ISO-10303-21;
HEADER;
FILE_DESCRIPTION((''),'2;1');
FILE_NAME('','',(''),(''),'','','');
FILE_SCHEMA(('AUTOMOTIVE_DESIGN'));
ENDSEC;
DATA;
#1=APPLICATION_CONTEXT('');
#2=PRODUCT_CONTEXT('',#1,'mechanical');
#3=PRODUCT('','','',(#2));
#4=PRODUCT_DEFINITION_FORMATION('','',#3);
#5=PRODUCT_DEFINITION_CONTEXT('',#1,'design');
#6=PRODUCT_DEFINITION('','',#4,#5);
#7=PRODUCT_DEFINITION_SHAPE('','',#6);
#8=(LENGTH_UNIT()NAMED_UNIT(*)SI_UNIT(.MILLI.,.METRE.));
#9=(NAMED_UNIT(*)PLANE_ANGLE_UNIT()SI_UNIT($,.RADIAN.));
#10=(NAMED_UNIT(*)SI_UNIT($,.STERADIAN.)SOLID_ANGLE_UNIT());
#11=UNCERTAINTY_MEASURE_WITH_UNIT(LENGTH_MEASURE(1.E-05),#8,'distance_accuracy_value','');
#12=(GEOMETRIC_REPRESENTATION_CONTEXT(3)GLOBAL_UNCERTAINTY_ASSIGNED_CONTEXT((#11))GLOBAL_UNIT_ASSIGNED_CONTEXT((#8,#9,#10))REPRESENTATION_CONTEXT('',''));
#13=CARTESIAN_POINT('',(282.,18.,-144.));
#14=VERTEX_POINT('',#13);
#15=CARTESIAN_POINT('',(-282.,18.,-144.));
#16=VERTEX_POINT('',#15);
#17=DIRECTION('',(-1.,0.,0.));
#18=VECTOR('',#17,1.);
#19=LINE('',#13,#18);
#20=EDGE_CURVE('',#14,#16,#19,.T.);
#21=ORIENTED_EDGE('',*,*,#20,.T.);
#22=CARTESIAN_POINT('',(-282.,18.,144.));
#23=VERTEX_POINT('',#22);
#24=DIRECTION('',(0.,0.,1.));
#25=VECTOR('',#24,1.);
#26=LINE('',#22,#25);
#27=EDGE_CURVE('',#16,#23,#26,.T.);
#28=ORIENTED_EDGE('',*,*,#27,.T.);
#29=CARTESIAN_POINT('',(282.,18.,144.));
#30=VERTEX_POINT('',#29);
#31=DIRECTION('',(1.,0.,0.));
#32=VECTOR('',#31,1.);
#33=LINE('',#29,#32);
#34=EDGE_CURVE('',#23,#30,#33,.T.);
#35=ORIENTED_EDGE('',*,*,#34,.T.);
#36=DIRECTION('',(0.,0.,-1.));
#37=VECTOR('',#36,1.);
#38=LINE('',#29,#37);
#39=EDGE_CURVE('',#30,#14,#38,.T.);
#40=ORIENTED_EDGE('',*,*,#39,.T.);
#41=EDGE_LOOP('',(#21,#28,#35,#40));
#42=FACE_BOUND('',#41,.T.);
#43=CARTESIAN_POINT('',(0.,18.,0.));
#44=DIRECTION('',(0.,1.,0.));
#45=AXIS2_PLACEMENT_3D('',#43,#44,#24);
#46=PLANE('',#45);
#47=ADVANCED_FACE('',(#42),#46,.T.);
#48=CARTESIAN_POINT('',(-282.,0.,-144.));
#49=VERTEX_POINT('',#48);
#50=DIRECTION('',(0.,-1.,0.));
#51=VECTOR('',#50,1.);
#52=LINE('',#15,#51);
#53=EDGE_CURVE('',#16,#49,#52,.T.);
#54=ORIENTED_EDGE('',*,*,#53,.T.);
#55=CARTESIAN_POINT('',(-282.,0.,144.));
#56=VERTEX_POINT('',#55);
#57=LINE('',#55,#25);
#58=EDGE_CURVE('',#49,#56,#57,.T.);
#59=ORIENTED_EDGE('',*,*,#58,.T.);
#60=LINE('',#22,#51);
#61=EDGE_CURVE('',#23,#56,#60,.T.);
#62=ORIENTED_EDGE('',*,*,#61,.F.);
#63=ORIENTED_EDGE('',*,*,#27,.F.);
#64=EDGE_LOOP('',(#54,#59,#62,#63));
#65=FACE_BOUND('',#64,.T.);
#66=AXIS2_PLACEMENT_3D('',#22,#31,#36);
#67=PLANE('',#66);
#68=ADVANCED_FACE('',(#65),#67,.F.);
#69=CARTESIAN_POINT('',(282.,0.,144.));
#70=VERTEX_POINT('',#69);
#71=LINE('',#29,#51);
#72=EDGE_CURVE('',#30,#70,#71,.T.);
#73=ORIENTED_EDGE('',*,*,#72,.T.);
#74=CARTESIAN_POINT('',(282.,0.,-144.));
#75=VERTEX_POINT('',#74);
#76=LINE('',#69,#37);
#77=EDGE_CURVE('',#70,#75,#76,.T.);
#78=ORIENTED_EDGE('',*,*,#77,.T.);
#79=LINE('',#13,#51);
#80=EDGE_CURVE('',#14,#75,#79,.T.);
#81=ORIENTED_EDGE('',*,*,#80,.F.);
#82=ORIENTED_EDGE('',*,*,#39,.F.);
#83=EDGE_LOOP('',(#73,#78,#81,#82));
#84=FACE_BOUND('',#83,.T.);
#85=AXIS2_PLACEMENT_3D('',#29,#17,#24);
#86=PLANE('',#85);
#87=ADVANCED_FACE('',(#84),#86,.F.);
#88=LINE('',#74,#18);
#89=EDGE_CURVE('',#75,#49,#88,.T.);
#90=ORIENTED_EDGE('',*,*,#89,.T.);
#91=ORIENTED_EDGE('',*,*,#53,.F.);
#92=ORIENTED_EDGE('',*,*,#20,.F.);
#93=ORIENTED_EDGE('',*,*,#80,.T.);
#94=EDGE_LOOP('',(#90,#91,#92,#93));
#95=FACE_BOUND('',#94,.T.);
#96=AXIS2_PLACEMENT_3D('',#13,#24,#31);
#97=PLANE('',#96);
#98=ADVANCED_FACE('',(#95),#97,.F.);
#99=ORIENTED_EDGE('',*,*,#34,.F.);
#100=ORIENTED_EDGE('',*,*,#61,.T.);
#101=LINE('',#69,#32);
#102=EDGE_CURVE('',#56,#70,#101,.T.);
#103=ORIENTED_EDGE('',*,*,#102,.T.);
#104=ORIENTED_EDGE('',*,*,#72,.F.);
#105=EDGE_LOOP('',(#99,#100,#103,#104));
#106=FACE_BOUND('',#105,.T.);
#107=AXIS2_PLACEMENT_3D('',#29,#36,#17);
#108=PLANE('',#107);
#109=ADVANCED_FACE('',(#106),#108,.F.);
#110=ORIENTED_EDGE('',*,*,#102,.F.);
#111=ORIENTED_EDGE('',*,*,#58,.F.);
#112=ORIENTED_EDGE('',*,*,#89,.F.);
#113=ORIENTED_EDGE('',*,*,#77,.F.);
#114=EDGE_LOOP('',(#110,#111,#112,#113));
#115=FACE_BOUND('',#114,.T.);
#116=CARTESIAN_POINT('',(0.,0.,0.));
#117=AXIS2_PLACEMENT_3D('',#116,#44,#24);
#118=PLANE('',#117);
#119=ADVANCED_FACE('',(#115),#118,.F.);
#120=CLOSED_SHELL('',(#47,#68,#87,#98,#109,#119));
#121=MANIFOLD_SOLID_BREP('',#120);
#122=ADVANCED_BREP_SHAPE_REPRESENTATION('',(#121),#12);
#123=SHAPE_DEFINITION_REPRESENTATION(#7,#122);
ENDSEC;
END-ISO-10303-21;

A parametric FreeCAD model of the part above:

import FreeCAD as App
import Part
import Sketcher

V = App.Vector
Q = App.Units.Quantity

doc = App.newDocument("Part")
params = doc.addObject("Spreadsheet::Sheet", "Params")
for row, (alias, value) in enumerate([
    ("sketch1_width", "564 mm"),
    ("sketch1_height", "288 mm"),
    ("pad1_length", "18 mm"),
], start=1):
    params.set(f"A{row}", alias)
    params.set(f"B{row}", "=" + value)
    params.setAlias(f"B{row}", alias)

body = doc.addObject("PartDesign::Body", "Body")

sketch1 = doc.addObject("Sketcher::SketchObject", "Sketch")
body.addObject(sketch1)
sketch1.AttachmentSupport = (doc.XZ_Plane, [""])
sketch1.MapMode = "FlatFace"
sketch1.addGeometry([
    Part.LineSegment(V(-282, -144, 0), V(-282, 144, 0)),
    Part.LineSegment(V(-282, 144, 0), V(282, 144, 0)),
    Part.LineSegment(V(282, 144, 0), V(282, -144, 0)),
    Part.LineSegment(V(282, -144, 0), V(-282, -144, 0)),
], False)
sketch1.addConstraint([
    Sketcher.Constraint("Coincident", 0, 2, 1, 1),
    Sketcher.Constraint("Coincident", 1, 2, 2, 1),
    Sketcher.Constraint("Coincident", 2, 2, 3, 1),
    Sketcher.Constraint("Coincident", 3, 2, 0, 1),
    Sketcher.Constraint("Vertical", 0),
    Sketcher.Constraint("Horizontal", 1),
    Sketcher.Constraint("Vertical", 2),
    Sketcher.Constraint("Horizontal", 3),
    Sketcher.Constraint("Symmetric", 0, 2, 2, 2, -1, 1),
    Sketcher.Constraint("DistanceX", 1, 1, 1, 2, Q("564 mm")),
    Sketcher.Constraint("DistanceY", 0, 1, 0, 2, Q("288 mm")),
])
sketch1.setExpression("Constraints[9]", "Params.sketch1_width")
sketch1.setExpression("Constraints[10]", "Params.sketch1_height")
pad1 = doc.addObject("PartDesign::Pad", "Pad")
body.addObject(pad1)
pad1.Profile = sketch1
pad1.setExpression("Length", "Params.pad1_length")
pad1.Reversed = True

doc.recompute()
